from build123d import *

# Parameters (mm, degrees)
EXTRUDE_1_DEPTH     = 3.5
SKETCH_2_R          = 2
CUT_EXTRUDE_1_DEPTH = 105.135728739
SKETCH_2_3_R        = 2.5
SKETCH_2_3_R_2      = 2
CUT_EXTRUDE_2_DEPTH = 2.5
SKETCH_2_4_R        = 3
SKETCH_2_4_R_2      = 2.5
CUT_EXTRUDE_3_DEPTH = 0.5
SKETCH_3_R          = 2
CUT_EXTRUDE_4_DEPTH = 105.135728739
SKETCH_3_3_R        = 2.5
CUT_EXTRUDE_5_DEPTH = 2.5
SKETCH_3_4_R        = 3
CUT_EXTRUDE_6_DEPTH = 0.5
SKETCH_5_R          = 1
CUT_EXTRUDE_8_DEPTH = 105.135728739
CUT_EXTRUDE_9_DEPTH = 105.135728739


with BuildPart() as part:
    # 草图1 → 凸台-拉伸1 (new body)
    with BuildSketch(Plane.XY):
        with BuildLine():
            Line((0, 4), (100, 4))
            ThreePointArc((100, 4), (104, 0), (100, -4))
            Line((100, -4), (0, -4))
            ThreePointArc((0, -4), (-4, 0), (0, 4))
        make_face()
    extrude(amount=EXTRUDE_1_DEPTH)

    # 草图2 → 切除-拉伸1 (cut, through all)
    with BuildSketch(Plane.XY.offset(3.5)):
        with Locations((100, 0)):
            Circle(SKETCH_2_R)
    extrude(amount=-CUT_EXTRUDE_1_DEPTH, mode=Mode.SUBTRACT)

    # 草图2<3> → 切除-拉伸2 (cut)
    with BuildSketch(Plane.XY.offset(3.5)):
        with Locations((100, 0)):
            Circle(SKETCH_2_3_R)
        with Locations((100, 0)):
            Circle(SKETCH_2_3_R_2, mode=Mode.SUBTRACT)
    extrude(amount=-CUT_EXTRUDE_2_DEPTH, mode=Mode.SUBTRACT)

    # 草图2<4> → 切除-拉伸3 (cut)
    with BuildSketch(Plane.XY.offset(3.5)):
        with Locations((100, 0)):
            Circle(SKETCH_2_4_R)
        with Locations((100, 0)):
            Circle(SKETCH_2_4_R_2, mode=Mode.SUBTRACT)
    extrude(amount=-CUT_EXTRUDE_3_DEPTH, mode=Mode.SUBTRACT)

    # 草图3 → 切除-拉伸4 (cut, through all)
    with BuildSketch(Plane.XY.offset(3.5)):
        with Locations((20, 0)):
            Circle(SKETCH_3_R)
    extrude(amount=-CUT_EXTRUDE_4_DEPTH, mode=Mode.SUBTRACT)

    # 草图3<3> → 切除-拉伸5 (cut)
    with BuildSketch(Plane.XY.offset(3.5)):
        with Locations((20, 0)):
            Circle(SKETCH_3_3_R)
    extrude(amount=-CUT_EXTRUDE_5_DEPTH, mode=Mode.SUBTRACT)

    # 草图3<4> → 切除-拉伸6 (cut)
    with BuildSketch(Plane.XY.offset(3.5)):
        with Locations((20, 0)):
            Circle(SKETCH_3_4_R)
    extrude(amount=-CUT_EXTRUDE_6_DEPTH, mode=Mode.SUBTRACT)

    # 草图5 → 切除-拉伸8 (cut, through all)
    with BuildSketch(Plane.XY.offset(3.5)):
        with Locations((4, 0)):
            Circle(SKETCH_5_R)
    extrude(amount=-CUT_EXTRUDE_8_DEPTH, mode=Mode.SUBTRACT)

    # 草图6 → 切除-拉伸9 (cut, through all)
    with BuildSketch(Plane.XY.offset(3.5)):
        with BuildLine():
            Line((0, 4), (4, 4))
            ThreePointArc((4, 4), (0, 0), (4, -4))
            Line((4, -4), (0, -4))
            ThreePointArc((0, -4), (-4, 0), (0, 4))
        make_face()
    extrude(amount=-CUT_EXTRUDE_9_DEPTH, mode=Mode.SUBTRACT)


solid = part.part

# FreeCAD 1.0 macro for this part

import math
import FreeCAD as App
import Part
import Sketcher

V = App.Vector
Q = App.Units.Quantity

doc = App.newDocument("Part")
body = doc.addObject("PartDesign::Body", "Body")

# Sketch on XY plane
sketch1 = doc.addObject("Sketcher::SketchObject", "Sketch")
body.addObject(sketch1)
sketch1.AttachmentSupport = (doc.XY_Plane, [""])
sketch1.MapMode = "FlatFace"
sketch1.addGeometry([
    Part.LineSegment(V(100, 4, 0), V(0, 4, 0)),
    Part.ArcOfCircle(Part.Circle(V(0, 0, 0), V(0, 0, 1), 4), math.radians(90), math.radians(270)),
    Part.LineSegment(V(0, -4, 0), V(100, -4, 0)),
    Part.ArcOfCircle(Part.Circle(V(100, 0, 0), V(0, 0, 1), 4), math.radians(-90), math.radians(90)),
], False)
sketch1.addConstraint([
    Sketcher.Constraint("Tangent", 0, 2, 1, 1),
    Sketcher.Constraint("Tangent", 1, 2, 2, 1),
    Sketcher.Constraint("Tangent", 2, 2, 3, 1),
    Sketcher.Constraint("Tangent", 3, 2, 0, 1),
    Sketcher.Constraint("Horizontal", 0),
    Sketcher.Constraint("Horizontal", 2),
    Sketcher.Constraint("Coincident", 1, 3, -1, 1),
    Sketcher.Constraint("Radius", 1, Q("4 mm")),
    Sketcher.Constraint("DistanceX", 0, 2, 0, 1, Q("100 mm")),
])
pad1 = doc.addObject("PartDesign::Pad", "Pad")
body.addObject(pad1)
pad1.Profile = sketch1
pad1.Length = 3.5

# Sketch on XY plane
sketch2 = doc.addObject("Sketcher::SketchObject", "Sketch001")
body.addObject(sketch2)
sketch2.AttachmentSupport = (doc.XY_Plane, [""])
sketch2.MapMode = "FlatFace"
sketch2.AttachmentOffset = App.Placement(V(0, 0, 3.5), App.Rotation())
sketch2.addGeometry(Part.Circle(V(100, 0, 0), V(0, 0, 1), 2), False)
sketch2.addConstraint([
    Sketcher.Constraint("PointOnObject", 0, 3, -1),
    Sketcher.Constraint("Diameter", 0, Q("4 mm")),
    Sketcher.Constraint("DistanceX", -1, 1, 0, 3, Q("100 mm")),
])
pocket1 = doc.addObject("PartDesign::Pocket", "Pocket")
body.addObject(pocket1)
pocket1.Profile = sketch2
pocket1.Type = "ThroughAll"

# Sketch on XY plane
sketch3 = doc.addObject("Sketcher::SketchObject", "Sketch002")
body.addObject(sketch3)
sketch3.AttachmentSupport = (doc.XY_Plane, [""])
sketch3.MapMode = "FlatFace"
sketch3.AttachmentOffset = App.Placement(V(0, 0, 3.5), App.Rotation())
sketch3.addGeometry([
    Part.Circle(V(100, 0, 0), V(0, 0, 1), 2.5),
    Part.Circle(V(100, 0, 0), V(0, 0, 1), 2),
], False)
sketch3.addConstraint([
    Sketcher.Constraint("Coincident", 1, 3, 0, 3),
    Sketcher.Constraint("PointOnObject", 0, 3, -1),
    Sketcher.Constraint("Diameter", 0, Q("5 mm")),
    Sketcher.Constraint("Diameter", 1, Q("4 mm")),
    Sketcher.Constraint("DistanceX", -1, 1, 0, 3, Q("100 mm")),
])
pocket2 = doc.addObject("PartDesign::Pocket", "Pocket001")
body.addObject(pocket2)
pocket2.Profile = sketch3
pocket2.Length = 2.5

# Sketch on XY plane
sketch4 = doc.addObject("Sketcher::SketchObject", "Sketch003")
body.addObject(sketch4)
sketch4.AttachmentSupport = (doc.XY_Plane, [""])
sketch4.MapMode = "FlatFace"
sketch4.AttachmentOffset = App.Placement(V(0, 0, 3.5), App.Rotation())
sketch4.addGeometry([
    Part.Circle(V(100, 0, 0), V(0, 0, 1), 3),
    Part.Circle(V(100, 0, 0), V(0, 0, 1), 2.5),
], False)
sketch4.addConstraint([
    Sketcher.Constraint("Coincident", 1, 3, 0, 3),
    Sketcher.Constraint("PointOnObject", 0, 3, -1),
    Sketcher.Constraint("Diameter", 0, Q("6 mm")),
    Sketcher.Constraint("Diameter", 1, Q("5 mm")),
    Sketcher.Constraint("DistanceX", -1, 1, 0, 3, Q("100 mm")),
])
pocket3 = doc.addObject("PartDesign::Pocket", "Pocket002")
body.addObject(pocket3)
pocket3.Profile = sketch4
pocket3.Length = 0.5

# Sketch on XY plane
sketch5 = doc.addObject("Sketcher::SketchObject", "Sketch004")
body.addObject(sketch5)
sketch5.AttachmentSupport = (doc.XY_Plane, [""])
sketch5.MapMode = "FlatFace"
sketch5.AttachmentOffset = App.Placement(V(0, 0, 3.5), App.Rotation())
sketch5.addGeometry(Part.Circle(V(20, 0, 0), V(0, 0, 1), 2), False)
sketch5.addConstraint([
    Sketcher.Constraint("PointOnObject", 0, 3, -1),
    Sketcher.Constraint("Diameter", 0, Q("4 mm")),
    Sketcher.Constraint("DistanceX", -1, 1, 0, 3, Q("20 mm")),
])
pocket4 = doc.addObject("PartDesign::Pocket", "Pocket003")
body.addObject(pocket4)
pocket4.Profile = sketch5
pocket4.Type = "ThroughAll"

# Sketch on XY plane
sketch6 = doc.addObject("Sketcher::SketchObject", "Sketch005")
body.addObject(sketch6)
sketch6.AttachmentSupport = (doc.XY_Plane, [""])
sketch6.MapMode = "FlatFace"
sketch6.AttachmentOffset = App.Placement(V(0, 0, 3.5), App.Rotation())
sketch6.addGeometry(Part.Circle(V(20, 0, 0), V(0, 0, 1), 2.5), False)
sketch6.addConstraint([
    Sketcher.Constraint("PointOnObject", 0, 3, -1),
    Sketcher.Constraint("Diameter", 0, Q("5 mm")),
    Sketcher.Constraint("DistanceX", -1, 1, 0, 3, Q("20 mm")),
])
pocket5 = doc.addObject("PartDesign::Pocket", "Pocket004")
body.addObject(pocket5)
pocket5.Profile = sketch6
pocket5.Length = 2.5

# Sketch on XY plane
sketch7 = doc.addObject("Sketcher::SketchObject", "Sketch006")
body.addObject(sketch7)
sketch7.AttachmentSupport = (doc.XY_Plane, [""])
sketch7.MapMode = "FlatFace"
sketch7.AttachmentOffset = App.Placement(V(0, 0, 3.5), App.Rotation())
sketch7.addGeometry(Part.Circle(V(20, 0, 0), V(0, 0, 1), 3), False)
sketch7.addConstraint([
    Sketcher.Constraint("PointOnObject", 0, 3, -1),
    Sketcher.Constraint("Diameter", 0, Q("6 mm")),
    Sketcher.Constraint("DistanceX", -1, 1, 0, 3, Q("20 mm")),
])
pocket6 = doc.addObject("PartDesign::Pocket", "Pocket005")
body.addObject(pocket6)
pocket6.Profile = sketch7
pocket6.Length = 0.5

# Sketch on XY plane
sketch8 = doc.addObject("Sketcher::SketchObject", "Sketch007")
body.addObject(sketch8)
sketch8.AttachmentSupport = (doc.XY_Plane, [""])
sketch8.MapMode = "FlatFace"
sketch8.AttachmentOffset = App.Placement(V(0, 0, 3.5), App.Rotation())
sketch8.addGeometry(Part.Circle(V(4, 0, 0), V(0, 0, 1), 1), False)
sketch8.addConstraint([
    Sketcher.Constraint("PointOnObject", 0, 3, -1),
    Sketcher.Constraint("Diameter", 0, Q("2 mm")),
    Sketcher.Constraint("DistanceX", -1, 1, 0, 3, Q("4 mm")),
])
pocket7 = doc.addObject("PartDesign::Pocket", "Pocket006")
body.addObject(pocket7)
pocket7.Profile = sketch8
pocket7.Type = "ThroughAll"

# Sketch on XY plane
sketch9 = doc.addObject("Sketcher::SketchObject", "Sketch008")
body.addObject(sketch9)
sketch9.AttachmentSupport = (doc.XY_Plane, [""])
sketch9.MapMode = "FlatFace"
sketch9.AttachmentOffset = App.Placement(V(0, 0, 3.5), App.Rotation())
sketch9.addGeometry([
    Part.LineSegment(V(4, 4, 0), V(0, 4, 0)),
    Part.ArcOfCircle(Part.Circle(V(0, 0, 0), V(0, 0, 1), 4), math.radians(90), math.radians(270)),
    Part.LineSegment(V(0, -4, 0), V(4, -4, 0)),
    Part.ArcOfCircle(Part.Circle(V(4, 0, 0), V(0, 0, 1), 4), math.radians(90), math.radians(270)),
], False)
sketch9.addConstraint([
    Sketcher.Constraint("Tangent", 0, 2, 1, 1),
    Sketcher.Constraint("Tangent", 1, 2, 2, 1),
    Sketcher.Constraint("Tangent", 2, 2, 3, 2),
    Sketcher.Constraint("Tangent", 3, 1, 0, 1),
    Sketcher.Constraint("Horizontal", 0),
    Sketcher.Constraint("Horizontal", 2),
    Sketcher.Constraint("Coincident", 1, 3, -1, 1),
    Sketcher.Constraint("Radius", 1, Q("4 mm")),
    Sketcher.Constraint("DistanceX", 0, 2, 0, 1, Q("4 mm")),
])
pocket8 = doc.addObject("PartDesign::Pocket", "Pocket007")
body.addObject(pocket8)
pocket8.Profile = sketch9
pocket8.Type = "ThroughAll"

doc.recompute()
